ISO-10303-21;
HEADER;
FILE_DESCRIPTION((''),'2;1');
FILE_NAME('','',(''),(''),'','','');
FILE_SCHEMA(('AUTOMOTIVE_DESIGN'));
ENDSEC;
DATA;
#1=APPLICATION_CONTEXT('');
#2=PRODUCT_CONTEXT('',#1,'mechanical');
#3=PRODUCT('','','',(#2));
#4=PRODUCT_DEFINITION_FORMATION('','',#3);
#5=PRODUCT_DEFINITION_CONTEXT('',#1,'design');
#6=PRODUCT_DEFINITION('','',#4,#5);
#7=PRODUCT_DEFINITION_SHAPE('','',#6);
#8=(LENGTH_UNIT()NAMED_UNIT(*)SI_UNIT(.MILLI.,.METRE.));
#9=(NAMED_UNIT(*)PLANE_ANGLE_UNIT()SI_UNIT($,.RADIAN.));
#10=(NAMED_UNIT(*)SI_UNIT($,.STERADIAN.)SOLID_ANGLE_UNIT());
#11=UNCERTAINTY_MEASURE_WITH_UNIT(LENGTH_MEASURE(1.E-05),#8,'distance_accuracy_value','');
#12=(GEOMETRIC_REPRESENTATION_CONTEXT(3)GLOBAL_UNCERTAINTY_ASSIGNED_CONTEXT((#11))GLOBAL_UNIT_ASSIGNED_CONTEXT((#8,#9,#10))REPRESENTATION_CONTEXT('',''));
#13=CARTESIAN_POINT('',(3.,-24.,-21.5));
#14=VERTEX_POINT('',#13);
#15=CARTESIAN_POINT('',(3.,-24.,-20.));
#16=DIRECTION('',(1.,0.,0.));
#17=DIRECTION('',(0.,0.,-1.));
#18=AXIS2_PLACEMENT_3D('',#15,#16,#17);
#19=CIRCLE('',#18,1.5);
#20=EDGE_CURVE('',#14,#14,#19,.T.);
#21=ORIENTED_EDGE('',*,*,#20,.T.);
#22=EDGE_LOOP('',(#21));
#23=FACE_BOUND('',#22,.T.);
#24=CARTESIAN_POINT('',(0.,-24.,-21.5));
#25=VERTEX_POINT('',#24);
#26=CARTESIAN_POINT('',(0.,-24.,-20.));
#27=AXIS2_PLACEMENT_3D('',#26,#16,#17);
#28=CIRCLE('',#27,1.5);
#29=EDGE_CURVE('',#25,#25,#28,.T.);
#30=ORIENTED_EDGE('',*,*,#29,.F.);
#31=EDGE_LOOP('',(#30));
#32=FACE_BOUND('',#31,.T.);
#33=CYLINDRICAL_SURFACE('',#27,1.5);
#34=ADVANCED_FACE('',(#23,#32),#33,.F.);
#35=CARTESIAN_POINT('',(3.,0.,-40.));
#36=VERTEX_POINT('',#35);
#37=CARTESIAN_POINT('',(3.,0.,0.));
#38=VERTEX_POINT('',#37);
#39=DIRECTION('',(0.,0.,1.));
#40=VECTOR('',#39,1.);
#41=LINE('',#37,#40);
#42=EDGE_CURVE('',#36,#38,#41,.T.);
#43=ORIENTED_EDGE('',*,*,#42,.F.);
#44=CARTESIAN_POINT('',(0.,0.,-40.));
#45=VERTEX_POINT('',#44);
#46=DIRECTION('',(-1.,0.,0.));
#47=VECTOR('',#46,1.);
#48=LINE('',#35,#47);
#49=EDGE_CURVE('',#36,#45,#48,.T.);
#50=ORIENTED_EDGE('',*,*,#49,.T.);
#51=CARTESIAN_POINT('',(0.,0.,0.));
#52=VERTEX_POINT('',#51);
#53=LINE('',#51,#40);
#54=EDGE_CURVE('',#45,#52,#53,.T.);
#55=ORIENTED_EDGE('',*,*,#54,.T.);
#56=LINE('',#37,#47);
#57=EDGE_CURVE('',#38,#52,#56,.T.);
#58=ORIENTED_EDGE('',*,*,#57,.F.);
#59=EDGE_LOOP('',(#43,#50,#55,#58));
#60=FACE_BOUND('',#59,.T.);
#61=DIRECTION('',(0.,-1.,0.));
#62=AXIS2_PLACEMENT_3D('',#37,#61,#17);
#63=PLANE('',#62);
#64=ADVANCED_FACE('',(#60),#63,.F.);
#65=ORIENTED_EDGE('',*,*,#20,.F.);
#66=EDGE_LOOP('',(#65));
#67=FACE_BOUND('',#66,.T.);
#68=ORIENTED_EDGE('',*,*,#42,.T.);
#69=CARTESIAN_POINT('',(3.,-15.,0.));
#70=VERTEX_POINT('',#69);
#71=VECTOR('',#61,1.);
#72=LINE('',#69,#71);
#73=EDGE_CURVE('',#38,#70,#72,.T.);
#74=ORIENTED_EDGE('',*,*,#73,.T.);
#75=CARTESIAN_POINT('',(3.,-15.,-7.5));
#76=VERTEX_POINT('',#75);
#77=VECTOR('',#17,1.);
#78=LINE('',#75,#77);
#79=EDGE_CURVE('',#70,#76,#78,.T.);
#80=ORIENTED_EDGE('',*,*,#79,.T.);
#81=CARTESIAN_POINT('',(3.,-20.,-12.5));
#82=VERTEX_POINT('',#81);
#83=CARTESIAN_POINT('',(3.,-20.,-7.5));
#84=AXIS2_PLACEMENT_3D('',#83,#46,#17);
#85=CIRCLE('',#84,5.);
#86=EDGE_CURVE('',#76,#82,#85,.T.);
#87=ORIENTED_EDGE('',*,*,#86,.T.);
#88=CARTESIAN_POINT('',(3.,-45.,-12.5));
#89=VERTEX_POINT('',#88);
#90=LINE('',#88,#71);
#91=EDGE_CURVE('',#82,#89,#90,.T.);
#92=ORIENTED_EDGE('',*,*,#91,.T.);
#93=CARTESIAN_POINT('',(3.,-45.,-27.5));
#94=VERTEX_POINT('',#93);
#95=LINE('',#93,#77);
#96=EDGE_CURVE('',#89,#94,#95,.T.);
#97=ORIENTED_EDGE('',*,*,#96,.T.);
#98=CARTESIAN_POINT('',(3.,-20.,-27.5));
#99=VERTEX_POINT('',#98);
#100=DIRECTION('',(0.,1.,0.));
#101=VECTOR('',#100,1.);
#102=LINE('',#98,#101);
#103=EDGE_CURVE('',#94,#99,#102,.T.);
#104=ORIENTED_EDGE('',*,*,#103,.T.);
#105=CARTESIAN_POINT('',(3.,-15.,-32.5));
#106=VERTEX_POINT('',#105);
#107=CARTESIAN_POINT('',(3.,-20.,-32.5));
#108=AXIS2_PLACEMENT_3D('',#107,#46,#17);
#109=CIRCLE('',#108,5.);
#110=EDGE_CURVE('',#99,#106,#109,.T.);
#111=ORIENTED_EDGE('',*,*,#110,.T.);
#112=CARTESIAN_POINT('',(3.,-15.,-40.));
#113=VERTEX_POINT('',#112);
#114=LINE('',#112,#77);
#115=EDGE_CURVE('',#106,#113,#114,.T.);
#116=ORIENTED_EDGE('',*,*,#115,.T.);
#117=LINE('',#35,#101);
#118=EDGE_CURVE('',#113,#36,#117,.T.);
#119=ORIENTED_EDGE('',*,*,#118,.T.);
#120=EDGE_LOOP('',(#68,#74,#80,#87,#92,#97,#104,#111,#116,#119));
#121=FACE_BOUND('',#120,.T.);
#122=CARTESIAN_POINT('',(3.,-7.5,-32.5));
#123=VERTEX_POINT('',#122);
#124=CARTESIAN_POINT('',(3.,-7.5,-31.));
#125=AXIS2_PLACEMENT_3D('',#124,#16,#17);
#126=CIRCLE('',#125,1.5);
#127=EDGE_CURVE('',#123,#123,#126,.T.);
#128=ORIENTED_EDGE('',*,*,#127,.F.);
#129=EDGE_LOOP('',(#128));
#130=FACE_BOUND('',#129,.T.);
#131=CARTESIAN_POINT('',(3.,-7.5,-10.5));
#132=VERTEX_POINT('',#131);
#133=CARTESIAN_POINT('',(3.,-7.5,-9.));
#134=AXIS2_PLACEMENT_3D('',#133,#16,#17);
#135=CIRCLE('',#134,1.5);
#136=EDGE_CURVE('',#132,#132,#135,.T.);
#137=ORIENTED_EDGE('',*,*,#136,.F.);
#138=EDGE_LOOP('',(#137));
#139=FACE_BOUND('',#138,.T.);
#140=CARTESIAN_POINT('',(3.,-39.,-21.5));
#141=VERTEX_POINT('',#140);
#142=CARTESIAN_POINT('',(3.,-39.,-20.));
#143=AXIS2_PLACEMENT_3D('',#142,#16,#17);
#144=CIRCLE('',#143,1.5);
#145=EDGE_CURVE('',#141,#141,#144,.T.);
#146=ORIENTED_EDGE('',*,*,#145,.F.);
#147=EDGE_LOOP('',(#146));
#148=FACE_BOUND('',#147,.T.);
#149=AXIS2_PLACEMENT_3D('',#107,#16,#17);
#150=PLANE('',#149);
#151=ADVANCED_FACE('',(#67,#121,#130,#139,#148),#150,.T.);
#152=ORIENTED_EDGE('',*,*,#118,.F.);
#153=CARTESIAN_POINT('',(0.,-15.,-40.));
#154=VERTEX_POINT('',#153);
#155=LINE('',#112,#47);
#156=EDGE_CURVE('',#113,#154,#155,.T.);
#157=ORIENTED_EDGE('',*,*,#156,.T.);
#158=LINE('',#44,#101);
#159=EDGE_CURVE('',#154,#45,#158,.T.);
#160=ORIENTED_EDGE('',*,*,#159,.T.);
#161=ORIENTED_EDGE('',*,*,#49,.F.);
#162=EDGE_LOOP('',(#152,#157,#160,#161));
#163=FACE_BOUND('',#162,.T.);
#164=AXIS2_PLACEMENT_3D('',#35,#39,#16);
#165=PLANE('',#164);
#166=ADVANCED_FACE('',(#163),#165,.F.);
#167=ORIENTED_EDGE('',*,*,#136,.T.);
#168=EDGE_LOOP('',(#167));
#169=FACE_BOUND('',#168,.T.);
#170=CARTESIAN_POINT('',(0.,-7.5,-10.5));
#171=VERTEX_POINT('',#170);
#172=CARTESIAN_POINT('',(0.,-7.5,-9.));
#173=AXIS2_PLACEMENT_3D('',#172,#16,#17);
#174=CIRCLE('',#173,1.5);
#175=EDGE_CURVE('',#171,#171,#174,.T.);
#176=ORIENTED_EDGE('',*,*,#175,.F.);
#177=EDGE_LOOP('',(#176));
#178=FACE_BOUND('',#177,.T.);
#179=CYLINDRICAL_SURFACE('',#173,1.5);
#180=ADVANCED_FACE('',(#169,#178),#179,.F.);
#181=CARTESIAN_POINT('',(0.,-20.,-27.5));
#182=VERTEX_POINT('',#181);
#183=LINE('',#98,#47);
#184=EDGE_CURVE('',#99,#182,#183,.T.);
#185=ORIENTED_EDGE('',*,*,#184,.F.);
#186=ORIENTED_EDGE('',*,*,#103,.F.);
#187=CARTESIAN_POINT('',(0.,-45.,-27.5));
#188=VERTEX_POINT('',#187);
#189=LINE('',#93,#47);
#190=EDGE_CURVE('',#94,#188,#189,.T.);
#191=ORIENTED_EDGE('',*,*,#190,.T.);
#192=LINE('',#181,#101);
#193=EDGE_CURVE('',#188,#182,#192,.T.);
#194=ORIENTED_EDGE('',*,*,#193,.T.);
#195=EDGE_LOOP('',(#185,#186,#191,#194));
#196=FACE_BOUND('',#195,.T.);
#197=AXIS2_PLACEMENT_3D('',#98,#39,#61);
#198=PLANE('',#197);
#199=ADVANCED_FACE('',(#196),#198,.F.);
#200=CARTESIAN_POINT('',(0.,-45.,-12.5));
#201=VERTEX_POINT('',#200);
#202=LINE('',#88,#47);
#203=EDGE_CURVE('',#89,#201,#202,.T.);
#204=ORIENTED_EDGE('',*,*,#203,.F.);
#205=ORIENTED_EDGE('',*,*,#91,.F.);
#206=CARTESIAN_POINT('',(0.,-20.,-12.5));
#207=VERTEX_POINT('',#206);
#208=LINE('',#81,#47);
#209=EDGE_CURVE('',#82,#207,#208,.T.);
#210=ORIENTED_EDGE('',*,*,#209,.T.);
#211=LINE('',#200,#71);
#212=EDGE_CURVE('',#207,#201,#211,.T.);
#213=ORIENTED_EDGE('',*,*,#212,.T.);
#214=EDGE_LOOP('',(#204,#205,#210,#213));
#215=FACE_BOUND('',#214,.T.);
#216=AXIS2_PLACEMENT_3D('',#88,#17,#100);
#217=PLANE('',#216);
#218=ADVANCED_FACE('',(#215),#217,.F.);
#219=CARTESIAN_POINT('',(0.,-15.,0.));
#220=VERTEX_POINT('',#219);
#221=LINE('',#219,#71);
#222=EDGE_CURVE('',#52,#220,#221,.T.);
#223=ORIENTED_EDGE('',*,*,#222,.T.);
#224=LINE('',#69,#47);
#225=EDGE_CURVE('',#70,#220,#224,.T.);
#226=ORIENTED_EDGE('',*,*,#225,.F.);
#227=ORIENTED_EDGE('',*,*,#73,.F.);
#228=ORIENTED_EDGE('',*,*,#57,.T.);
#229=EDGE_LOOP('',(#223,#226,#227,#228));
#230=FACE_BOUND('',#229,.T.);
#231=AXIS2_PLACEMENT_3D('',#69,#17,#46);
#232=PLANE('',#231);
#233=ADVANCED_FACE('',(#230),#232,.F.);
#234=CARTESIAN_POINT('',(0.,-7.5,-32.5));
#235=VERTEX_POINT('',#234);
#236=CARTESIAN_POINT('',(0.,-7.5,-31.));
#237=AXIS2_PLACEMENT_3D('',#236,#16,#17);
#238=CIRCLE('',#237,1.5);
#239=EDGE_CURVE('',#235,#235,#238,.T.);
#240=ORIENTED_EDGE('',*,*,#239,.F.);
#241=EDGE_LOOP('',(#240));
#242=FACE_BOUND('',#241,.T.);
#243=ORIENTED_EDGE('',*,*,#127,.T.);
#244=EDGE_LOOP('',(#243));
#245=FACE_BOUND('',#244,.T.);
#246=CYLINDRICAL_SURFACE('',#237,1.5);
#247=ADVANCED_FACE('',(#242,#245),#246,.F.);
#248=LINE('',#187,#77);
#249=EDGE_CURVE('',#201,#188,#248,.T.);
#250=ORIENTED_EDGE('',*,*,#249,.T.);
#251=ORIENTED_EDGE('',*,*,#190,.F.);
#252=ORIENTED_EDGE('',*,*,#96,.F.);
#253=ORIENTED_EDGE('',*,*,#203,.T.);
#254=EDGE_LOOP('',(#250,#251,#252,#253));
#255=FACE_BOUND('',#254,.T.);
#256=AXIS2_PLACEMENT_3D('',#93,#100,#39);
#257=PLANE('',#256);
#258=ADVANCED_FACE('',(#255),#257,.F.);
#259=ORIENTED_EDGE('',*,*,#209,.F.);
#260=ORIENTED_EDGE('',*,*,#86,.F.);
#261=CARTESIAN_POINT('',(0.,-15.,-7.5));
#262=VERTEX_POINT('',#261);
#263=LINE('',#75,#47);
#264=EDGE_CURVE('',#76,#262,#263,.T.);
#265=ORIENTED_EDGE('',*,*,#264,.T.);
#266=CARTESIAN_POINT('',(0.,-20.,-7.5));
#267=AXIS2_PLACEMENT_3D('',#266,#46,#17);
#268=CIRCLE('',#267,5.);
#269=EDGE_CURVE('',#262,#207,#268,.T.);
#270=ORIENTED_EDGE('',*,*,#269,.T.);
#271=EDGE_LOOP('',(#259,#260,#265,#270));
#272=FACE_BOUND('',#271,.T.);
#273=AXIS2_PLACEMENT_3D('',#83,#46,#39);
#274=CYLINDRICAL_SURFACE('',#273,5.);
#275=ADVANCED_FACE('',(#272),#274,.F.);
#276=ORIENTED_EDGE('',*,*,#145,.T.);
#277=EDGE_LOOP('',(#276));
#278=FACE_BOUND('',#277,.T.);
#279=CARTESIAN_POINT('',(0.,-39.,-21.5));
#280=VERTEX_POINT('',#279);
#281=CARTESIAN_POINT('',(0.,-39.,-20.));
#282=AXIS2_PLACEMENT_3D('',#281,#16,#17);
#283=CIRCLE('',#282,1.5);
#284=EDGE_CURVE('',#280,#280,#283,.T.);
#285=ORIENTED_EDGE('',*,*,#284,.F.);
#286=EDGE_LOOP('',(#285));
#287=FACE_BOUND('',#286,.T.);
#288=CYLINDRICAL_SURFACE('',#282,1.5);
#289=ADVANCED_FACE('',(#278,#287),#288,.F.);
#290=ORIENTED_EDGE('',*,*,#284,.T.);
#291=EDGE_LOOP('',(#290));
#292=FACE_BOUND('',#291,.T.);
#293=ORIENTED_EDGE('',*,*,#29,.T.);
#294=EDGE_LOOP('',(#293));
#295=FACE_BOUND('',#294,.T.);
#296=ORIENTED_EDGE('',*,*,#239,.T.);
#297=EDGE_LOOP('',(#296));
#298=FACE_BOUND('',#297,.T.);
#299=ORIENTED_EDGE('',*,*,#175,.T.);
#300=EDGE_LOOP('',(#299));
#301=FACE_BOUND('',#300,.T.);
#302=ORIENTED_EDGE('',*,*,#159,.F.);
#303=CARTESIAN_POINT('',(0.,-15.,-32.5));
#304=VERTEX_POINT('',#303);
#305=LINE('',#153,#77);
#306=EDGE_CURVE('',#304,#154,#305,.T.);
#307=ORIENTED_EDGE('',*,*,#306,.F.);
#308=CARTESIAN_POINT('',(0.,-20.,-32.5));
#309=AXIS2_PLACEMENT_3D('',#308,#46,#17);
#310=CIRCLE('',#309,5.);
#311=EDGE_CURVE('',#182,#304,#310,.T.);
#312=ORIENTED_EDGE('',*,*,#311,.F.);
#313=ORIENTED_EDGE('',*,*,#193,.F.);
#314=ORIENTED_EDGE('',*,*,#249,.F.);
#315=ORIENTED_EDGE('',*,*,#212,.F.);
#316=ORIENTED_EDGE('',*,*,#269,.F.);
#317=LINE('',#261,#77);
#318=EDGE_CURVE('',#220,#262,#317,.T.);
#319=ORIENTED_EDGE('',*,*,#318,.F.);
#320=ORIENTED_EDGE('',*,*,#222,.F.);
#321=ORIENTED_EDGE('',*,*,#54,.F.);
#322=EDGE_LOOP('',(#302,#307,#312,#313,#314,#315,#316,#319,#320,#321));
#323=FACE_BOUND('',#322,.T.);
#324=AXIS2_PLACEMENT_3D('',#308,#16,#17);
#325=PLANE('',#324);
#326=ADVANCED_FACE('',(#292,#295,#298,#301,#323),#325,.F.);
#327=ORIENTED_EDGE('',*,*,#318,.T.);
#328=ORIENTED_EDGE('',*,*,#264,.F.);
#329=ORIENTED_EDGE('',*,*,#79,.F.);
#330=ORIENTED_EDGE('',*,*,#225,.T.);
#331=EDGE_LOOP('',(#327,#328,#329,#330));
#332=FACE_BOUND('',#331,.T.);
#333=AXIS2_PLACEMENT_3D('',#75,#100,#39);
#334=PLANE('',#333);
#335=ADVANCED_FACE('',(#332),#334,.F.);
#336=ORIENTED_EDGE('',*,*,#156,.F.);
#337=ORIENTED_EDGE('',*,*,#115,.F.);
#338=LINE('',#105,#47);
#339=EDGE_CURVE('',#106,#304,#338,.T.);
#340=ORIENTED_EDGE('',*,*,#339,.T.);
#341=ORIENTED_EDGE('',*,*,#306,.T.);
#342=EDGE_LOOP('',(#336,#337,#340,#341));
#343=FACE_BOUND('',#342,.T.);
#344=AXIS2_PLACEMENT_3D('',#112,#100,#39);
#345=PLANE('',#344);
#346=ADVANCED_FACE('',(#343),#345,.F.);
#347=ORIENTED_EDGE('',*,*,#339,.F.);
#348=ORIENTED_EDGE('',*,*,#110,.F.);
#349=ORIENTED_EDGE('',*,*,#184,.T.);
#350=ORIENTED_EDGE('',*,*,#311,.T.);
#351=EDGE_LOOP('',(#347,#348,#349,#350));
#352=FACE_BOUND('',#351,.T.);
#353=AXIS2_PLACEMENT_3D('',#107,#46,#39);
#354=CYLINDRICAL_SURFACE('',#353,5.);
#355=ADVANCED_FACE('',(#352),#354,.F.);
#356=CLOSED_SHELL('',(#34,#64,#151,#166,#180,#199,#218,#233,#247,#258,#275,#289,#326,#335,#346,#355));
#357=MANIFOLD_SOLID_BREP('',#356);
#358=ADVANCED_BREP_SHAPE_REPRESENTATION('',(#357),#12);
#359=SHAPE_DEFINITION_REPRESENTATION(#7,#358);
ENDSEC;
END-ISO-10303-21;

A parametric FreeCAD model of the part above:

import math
import FreeCAD as App
import Part
import Sketcher

doc = App.newDocument("Part")
body = doc.addObject("PartDesign::Body", "Body")

sketch1 = body.newObject("Sketcher::SketchObject", "Sketch")
sketch1.AttachmentSupport = (doc.getObject("YZ_Plane"), [""])
sketch1.MapMode = "FlatFace"
sketch1.addGeometry([
    Part.LineSegment(App.Vector(0, -40, 0), App.Vector(0, 0, 0)),
    Part.LineSegment(App.Vector(0, 0, 0), App.Vector(-15, 0, 0)),
    Part.LineSegment(App.Vector(-15, 0, 0), App.Vector(-15, -7.5, 0)),
    Part.ArcOfCircle(Part.Circle(App.Vector(-20, -7.5, 0), App.Vector(0, 0, 1), 5), math.radians(-90), math.radians(0)),
    Part.LineSegment(App.Vector(-20, -12.5, 0), App.Vector(-45, -12.5, 0)),
    Part.LineSegment(App.Vector(-45, -12.5, 0), App.Vector(-45, -27.5, 0)),
    Part.LineSegment(App.Vector(-45, -27.5, 0), App.Vector(-20, -27.5, 0)),
    Part.ArcOfCircle(Part.Circle(App.Vector(-20, -32.5, 0), App.Vector(0, 0, 1), 5), math.radians(0), math.radians(90)),
    Part.LineSegment(App.Vector(-15, -32.5, 0), App.Vector(-15, -40, 0)),
    Part.LineSegment(App.Vector(-15, -40, 0), App.Vector(0, -40, 0)),
], False)
sketch1.addConstraint([
    Sketcher.Constraint("Coincident", 0, 2, 1, 1),
    Sketcher.Constraint("Coincident", 1, 2, 2, 1),
    Sketcher.Constraint("Tangent", 2, 2, 3, 2),
    Sketcher.Constraint("Tangent", 3, 1, 4, 1),
    Sketcher.Constraint("Coincident", 4, 2, 5, 1),
    Sketcher.Constraint("Coincident", 5, 2, 6, 1),
    Sketcher.Constraint("Tangent", 6, 2, 7, 2),
    Sketcher.Constraint("Tangent", 7, 1, 8, 1),
    Sketcher.Constraint("Coincident", 8, 2, 9, 1),
    Sketcher.Constraint("Coincident", 9, 2, 0, 1),
    Sketcher.Constraint("Vertical", 0),
    Sketcher.Constraint("Horizontal", 1),
    Sketcher.Constraint("Vertical", 2),
    Sketcher.Constraint("Horizontal", 4),
    Sketcher.Constraint("Vertical", 5),
    Sketcher.Constraint("Horizontal", 6),
    Sketcher.Constraint("Vertical", 8),
    Sketcher.Constraint("Horizontal", 9),
    Sketcher.Constraint("Coincident", 0, 2, -1, 1),
    Sketcher.Constraint("Equal", 3, 7),
    Sketcher.Constraint("Vertical", 3, 3, 7, 3),
    Sketcher.Constraint("Equal", 9, 5),
    Sketcher.Constraint("Equal", 2, 8),
    Sketcher.Constraint("Radius", 3, 5.0),
    Sketcher.Constraint("DistanceX", 1, 2, 1, 1, 15.0),
    Sketcher.Constraint("DistanceX", 4, 2, 4, 1, 25.0),
    Sketcher.Constraint("DistanceY", 0, 1, 0, 2, 40.0),
])
pad1 = body.newObject("PartDesign::Pad", "Pad")
pad1.Profile = sketch1
pad1.Length = 3

sketch2 = body.newObject("Sketcher::SketchObject", "Sketch001")
sketch2.AttachmentSupport = (doc.getObject("YZ_Plane"), [""])
sketch2.MapMode = "FlatFace"
sketch2.AttachmentOffset = App.Placement(App.Vector(0, 0, 3), App.Rotation())
sketch2.addGeometry([
    Part.Circle(App.Vector(-7.5, -31, 0), App.Vector(0, 0, 1), 1.5),
    Part.Circle(App.Vector(-7.5, -9, 0), App.Vector(0, 0, 1), 1.5),
    Part.Circle(App.Vector(-39, -20, 0), App.Vector(0, 0, 1), 1.5),
    Part.Circle(App.Vector(-24, -20, 0), App.Vector(0, 0, 1), 1.5),
], False)
sketch2.addConstraint([
    Sketcher.Constraint("Equal", 0, 1),
    Sketcher.Constraint("Equal", 1, 2),
    Sketcher.Constraint("Equal", 2, 3),
    Sketcher.Constraint("Horizontal", 2, 3, 3, 3),
    Sketcher.Constraint("Vertical", 0, 3, 1, 3),
    Sketcher.Constraint("Diameter", 0, 3.0),
    Sketcher.Constraint("DistanceY", 0, 3, -1, 1, 31.0),
    Sketcher.Constraint("DistanceY", 1, 3, -1, 1, 9.0),
    Sketcher.Constraint("DistanceX", 2, 3, -1, 1, 39.0),
    Sketcher.Constraint("DistanceY", 2, 3, -1, 1, 20.0),
    Sketcher.Constraint("DistanceX", 3, 3, -1, 1, 24.0),
    Sketcher.Constraint("DistanceX", 0, 3, -1, 1, 7.5),
])
pocket1 = body.newObject("PartDesign::Pocket", "Pocket")
pocket1.Profile = sketch2
pocket1.Length = 3

doc.recompute()
